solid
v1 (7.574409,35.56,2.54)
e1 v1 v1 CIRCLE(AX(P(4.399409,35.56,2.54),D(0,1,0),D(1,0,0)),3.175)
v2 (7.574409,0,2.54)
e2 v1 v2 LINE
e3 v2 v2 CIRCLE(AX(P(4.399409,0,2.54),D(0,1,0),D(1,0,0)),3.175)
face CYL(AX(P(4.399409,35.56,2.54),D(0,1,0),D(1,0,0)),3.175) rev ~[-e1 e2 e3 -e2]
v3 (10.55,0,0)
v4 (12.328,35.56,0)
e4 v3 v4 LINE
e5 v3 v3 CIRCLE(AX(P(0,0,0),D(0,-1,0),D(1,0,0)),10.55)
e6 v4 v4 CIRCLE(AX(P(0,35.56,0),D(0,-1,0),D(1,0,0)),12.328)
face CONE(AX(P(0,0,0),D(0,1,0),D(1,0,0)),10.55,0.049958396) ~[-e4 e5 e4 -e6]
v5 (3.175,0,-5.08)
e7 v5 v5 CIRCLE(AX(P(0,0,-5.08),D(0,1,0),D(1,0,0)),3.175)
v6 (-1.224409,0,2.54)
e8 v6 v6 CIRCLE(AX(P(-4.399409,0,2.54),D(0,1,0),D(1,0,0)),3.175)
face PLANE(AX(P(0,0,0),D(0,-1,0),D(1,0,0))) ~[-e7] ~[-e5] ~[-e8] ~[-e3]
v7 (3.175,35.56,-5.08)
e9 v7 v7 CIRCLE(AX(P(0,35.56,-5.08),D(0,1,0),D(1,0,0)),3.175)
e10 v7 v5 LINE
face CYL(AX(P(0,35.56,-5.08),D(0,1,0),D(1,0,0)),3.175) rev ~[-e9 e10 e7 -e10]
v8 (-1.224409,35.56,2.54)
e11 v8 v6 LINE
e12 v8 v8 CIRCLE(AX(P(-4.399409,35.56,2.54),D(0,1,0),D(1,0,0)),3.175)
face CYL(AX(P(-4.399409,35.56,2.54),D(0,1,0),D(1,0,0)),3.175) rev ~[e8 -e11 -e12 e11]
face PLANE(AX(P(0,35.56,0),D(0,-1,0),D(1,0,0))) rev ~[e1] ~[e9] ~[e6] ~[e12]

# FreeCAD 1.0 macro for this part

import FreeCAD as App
import Part
import Sketcher
from FreeCAD import Vector
Q = App.Units.Quantity


def add_polygon(sketch, points):
    """Adds a closed chain of lines whose ends are joined by coincident constraints."""
    first, n = sketch.GeometryCount, len(points)
    for a, b in zip(points, points[1:] + points[:1]):
        sketch.addGeometry(Part.LineSegment(App.Vector(*a, 0), App.Vector(*b, 0)), False)
    for i in range(n):
        sketch.addConstraint(Sketcher.Constraint("Coincident", first + i, 2, first + (i + 1) % n, 1))

doc = App.newDocument("Part")
params = doc.addObject("Spreadsheet::Sheet", "Params")
for row, (alias, value) in enumerate([
    ("sketch1_height", "1.4 in"),
    ("revolution_angle", "360 deg"),
    ("sketch2_diameter", "0.25 in"),
], start=1):
    params.set(f"A{row}", alias)
    params.set(f"B{row}", "=" + value)
    params.setAlias(f"B{row}", alias)

body = doc.addObject("PartDesign::Body", "Body")

# Sketch on XY plane
sketch1 = doc.addObject("Sketcher::SketchObject", "Sketch")
body.addObject(sketch1)
sketch1.AttachmentSupport = (doc.XY_Plane, [""])
sketch1.MapMode = "FlatFace"
add_polygon(sketch1, [(10.55, 0), (12.328, 35.56), (0, 35.56), (0, 0)])  # lines 0-3
sketch1.addConstraint([
    Sketcher.Constraint("Horizontal", 1),
    Sketcher.Constraint("Vertical", 2),
    Sketcher.Constraint("Horizontal", 3),
    Sketcher.Constraint("Coincident", 2, 2, -1, 1),
    Sketcher.Constraint("DistanceY", 2, 2, 2, 1, Q("1.4 in")),
    Sketcher.Constraint("DistanceX", 3, 2, 0, 2, Q("0.07 in")),
    Sketcher.Constraint("DistanceX", 1, 2, 1, 1, Q("12.328 mm")),
])
sketch1.setExpression("Constraints[8]", "Params.sketch1_height")
revolution = doc.addObject("PartDesign::Revolution", "Revolution")
body.addObject(revolution)
revolution.Profile = sketch1
revolution.ReferenceAxis = (sketch1, ["V_Axis"])
revolution.setExpression("Angle", "Params.revolution_angle")

# Sketch on XZ plane
sketch2 = doc.addObject("Sketcher::SketchObject", "Sketch001")
body.addObject(sketch2)
sketch2.AttachmentSupport = (doc.XZ_Plane, [""])
sketch2.MapMode = "FlatFace"
sketch2.AttachmentOffset = App.Placement(Vector(0, 0, -1.4 * 25.4), App.Rotation())
sketch2.addGeometry([
    Part.Circle(Vector(0, -5.08, 0), Vector(0, 0, 1), 3.175),
    Part.Circle(Vector(4.399409, 2.54, 0), Vector(0, 0, 1), 3.175),
    Part.Circle(Vector(-4.399409, 2.54, 0), Vector(0, 0, 1), 3.175),
], False)
sketch2.addConstraint([
    Sketcher.Constraint("Equal", 0, 1),
    Sketcher.Constraint("Equal", 1, 2),
    Sketcher.Constraint("Symmetric", 1, 3, 2, 3, -2),
    Sketcher.Constraint("PointOnObject", 0, 3, -2),
    Sketcher.Constraint("Diameter", 0, Q("0.25 in")),
    Sketcher.Constraint("DistanceY", 0, 3, -1, 1, Q("0.2 in")),
    Sketcher.Constraint("DistanceY", -1, 1, 1, 3, Q("0.1 in")),
    Sketcher.Constraint("DistanceX", -1, 1, 1, 3, Q("4.399409 mm")),
])
sketch2.setExpression("Constraints[4]", "Params.sketch2_diameter")
pocket1 = doc.addObject("PartDesign::Pocket", "Pocket")
body.addObject(pocket1)
pocket1.Profile = sketch2
pocket1.Type = "ThroughAll"
pocket1.Midplane = True

doc.recompute()
